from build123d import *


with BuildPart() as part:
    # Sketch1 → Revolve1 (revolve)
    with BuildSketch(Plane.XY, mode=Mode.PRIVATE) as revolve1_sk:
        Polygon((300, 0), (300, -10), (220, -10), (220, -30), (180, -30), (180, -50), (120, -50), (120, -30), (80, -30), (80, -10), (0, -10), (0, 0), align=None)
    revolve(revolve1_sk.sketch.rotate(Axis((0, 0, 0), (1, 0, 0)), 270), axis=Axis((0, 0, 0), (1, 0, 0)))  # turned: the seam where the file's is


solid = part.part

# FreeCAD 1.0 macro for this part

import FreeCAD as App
import Part
import Sketcher

V = App.Vector
Q = App.Units.Quantity

doc = App.newDocument("Part")
body = doc.addObject("PartDesign::Body", "Body")

sketch1 = doc.addObject("Sketcher::SketchObject", "Sketch")
body.addObject(sketch1)
sketch1.AttachmentSupport = (doc.XY_Plane, [""])
sketch1.MapMode = "FlatFace"
sketch1.addGeometry(Part.LineSegment(V(300, -10, 0), V(300, 0, 0)), False)
sketch1.addGeometry(Part.LineSegment(V(300, 0, 0), V(0, 0, 0)), False)
sketch1.addGeometry(Part.LineSegment(V(0, 0, 0), V(0, -10, 0)), False)
sketch1.addGeometry(Part.LineSegment(V(0, -10, 0), V(80, -10, 0)), False)
sketch1.addGeometry(Part.LineSegment(V(80, -10, 0), V(80, -30, 0)), False)
sketch1.addGeometry(Part.LineSegment(V(80, -30, 0), V(120, -30, 0)), False)
sketch1.addGeometry(Part.LineSegment(V(120, -30, 0), V(120, -50, 0)), False)
sketch1.addGeometry(Part.LineSegment(V(120, -50, 0), V(180, -50, 0)), False)
sketch1.addGeometry(Part.LineSegment(V(180, -50, 0), V(180, -30, 0)), False)
sketch1.addGeometry(Part.LineSegment(V(180, -30, 0), V(220, -30, 0)), False)
sketch1.addGeometry(Part.LineSegment(V(220, -30, 0), V(220, -10, 0)), False)
sketch1.addGeometry(Part.LineSegment(V(220, -10, 0), V(300, -10, 0)), False)
sketch1.addConstraint(Sketcher.Constraint("Coincident", 0, 2, 1, 1))
sketch1.addConstraint(Sketcher.Constraint("Coincident", 1, 2, 2, 1))
sketch1.addConstraint(Sketcher.Constraint("Coincident", 2, 2, 3, 1))
sketch1.addConstraint(Sketcher.Constraint("Coincident", 3, 2, 4, 1))
sketch1.addConstraint(Sketcher.Constraint("Coincident", 4, 2, 5, 1))
sketch1.addConstraint(Sketcher.Constraint("Coincident", 5, 2, 6, 1))
sketch1.addConstraint(Sketcher.Constraint("Coincident", 6, 2, 7, 1))
sketch1.addConstraint(Sketcher.Constraint("Coincident", 7, 2, 8, 1))
sketch1.addConstraint(Sketcher.Constraint("Coincident", 8, 2, 9, 1))
sketch1.addConstraint(Sketcher.Constraint("Coincident", 9, 2, 10, 1))
sketch1.addConstraint(Sketcher.Constraint("Coincident", 10, 2, 11, 1))
sketch1.addConstraint(Sketcher.Constraint("Coincident", 11, 2, 0, 1))
sketch1.addConstraint(Sketcher.Constraint("Vertical", 0))
sketch1.addConstraint(Sketcher.Constraint("Horizontal", 1))
sketch1.addConstraint(Sketcher.Constraint("Vertical", 2))
sketch1.addConstraint(Sketcher.Constraint("Horizontal", 3))
sketch1.addConstraint(Sketcher.Constraint("Vertical", 4))
sketch1.addConstraint(Sketcher.Constraint("Horizontal", 5))
sketch1.addConstraint(Sketcher.Constraint("Vertical", 6))
sketch1.addConstraint(Sketcher.Constraint("Horizontal", 7))
sketch1.addConstraint(Sketcher.Constraint("Vertical", 8))
sketch1.addConstraint(Sketcher.Constraint("Horizontal", 9))
sketch1.addConstraint(Sketcher.Constraint("Vertical", 10))
sketch1.addConstraint(Sketcher.Constraint("Horizontal", 11))
sketch1.addConstraint(Sketcher.Constraint("Coincident", 1, 2, -1, 1))
sketch1.addConstraint(Sketcher.Constraint("Horizontal", 5, 2, 8, 2))
sketch1.addConstraint(Sketcher.Constraint("Horizontal", 3, 2, 10, 2))
sketch1.addConstraint(Sketcher.Constraint("Equal", 5, 9))
sketch1.addConstraint(Sketcher.Constraint("Equal", 3, 11))
sketch1.addConstraint(Sketcher.Constraint("Equal", 4, 6))
sketch1.addConstraint(Sketcher.Constraint("DistanceX", 1, 2, 1, 1, Q("300 mm")))
sketch1.addConstraint(Sketcher.Constraint("DistanceX", 3, 1, 3, 2, Q("80 mm")))
sketch1.addConstraint(Sketcher.Constraint("DistanceX", 5, 1, 5, 2, Q("40 mm")))
sketch1.addConstraint(Sketcher.Constraint("DistanceY", 0, 1, 0, 2, Q("10 mm")))
sketch1.addConstraint(Sketcher.Constraint("DistanceY", 4, 2, 4, 1, Q("20 mm")))
revolution = doc.addObject("PartDesign::Revolution", "Revolution")
body.addObject(revolution)
revolution.Profile = sketch1
revolution.ReferenceAxis = (sketch1, ["H_Axis"])
revolution.Angle = 360

doc.recompute()
